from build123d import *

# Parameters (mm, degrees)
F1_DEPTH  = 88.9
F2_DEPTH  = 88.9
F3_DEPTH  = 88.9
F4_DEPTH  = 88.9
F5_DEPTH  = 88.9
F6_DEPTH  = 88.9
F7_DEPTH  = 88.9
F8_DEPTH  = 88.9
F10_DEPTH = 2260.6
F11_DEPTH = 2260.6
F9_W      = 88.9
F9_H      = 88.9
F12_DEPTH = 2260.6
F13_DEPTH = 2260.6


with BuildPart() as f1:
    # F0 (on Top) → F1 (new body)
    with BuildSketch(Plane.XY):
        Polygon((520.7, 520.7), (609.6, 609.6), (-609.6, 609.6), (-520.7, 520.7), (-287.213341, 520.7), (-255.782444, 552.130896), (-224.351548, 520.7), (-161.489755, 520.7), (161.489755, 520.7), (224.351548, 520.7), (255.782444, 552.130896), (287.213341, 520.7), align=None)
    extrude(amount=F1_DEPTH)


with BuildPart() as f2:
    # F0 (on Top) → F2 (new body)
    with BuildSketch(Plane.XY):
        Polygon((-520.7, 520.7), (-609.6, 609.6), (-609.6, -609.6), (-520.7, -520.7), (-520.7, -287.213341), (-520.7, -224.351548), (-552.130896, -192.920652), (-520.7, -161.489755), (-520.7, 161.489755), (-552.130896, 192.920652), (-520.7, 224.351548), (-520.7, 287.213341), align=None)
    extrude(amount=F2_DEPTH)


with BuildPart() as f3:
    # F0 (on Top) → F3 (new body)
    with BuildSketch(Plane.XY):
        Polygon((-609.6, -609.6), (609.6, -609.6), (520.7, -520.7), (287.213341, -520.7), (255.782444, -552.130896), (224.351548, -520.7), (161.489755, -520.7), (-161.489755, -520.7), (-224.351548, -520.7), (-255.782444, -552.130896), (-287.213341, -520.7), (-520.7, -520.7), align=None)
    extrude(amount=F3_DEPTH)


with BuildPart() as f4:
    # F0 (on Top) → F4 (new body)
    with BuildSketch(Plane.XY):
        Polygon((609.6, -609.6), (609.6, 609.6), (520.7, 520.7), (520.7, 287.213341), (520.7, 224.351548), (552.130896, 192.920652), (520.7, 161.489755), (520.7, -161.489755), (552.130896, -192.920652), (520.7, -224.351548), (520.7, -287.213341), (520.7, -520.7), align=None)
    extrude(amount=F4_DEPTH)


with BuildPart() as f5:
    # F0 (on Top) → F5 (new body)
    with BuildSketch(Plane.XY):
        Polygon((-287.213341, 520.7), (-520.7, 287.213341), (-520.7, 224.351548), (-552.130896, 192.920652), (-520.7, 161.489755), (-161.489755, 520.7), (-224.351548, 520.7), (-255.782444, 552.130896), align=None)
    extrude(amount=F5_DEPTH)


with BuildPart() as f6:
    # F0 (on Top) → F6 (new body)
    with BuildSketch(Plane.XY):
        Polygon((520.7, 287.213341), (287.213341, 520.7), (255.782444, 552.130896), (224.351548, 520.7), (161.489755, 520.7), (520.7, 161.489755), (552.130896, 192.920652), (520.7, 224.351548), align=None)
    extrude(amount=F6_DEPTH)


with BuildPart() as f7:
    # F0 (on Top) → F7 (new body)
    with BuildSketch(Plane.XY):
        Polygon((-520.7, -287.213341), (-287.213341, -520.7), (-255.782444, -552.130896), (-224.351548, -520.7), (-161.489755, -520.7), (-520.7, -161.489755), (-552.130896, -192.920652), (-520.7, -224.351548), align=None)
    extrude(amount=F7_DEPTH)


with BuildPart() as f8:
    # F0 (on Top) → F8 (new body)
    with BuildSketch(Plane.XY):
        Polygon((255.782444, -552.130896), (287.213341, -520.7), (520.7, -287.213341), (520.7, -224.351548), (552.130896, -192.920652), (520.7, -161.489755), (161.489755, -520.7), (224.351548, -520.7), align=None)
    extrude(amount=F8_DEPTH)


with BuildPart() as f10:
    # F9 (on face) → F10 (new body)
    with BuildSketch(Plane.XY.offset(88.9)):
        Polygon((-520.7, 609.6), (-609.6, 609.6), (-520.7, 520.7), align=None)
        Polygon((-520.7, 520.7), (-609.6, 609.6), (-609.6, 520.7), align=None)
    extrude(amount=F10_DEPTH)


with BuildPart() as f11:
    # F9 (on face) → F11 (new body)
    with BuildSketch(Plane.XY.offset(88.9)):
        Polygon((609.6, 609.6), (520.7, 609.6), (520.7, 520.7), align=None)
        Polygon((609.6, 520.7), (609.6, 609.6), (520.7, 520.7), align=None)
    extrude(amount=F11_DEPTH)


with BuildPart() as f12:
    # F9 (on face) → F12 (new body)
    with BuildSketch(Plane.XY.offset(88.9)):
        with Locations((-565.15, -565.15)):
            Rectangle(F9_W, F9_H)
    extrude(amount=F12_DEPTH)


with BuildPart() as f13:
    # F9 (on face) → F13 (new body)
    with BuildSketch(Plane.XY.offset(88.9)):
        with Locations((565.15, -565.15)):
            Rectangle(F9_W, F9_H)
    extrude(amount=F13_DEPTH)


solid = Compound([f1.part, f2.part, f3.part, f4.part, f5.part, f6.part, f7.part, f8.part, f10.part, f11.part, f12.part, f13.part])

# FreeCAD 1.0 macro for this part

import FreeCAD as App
import Part
import Sketcher

V = App.Vector
Q = App.Units.Quantity


def add_polygon(sketch, points):
    """Adds a closed chain of lines whose ends are joined by coincident constraints."""
    first, n = sketch.GeometryCount, len(points)
    for a, b in zip(points, points[1:] + points[:1]):
        sketch.addGeometry(Part.LineSegment(App.Vector(*a, 0), App.Vector(*b, 0)), False)
    for i in range(n):
        sketch.addConstraint(Sketcher.Constraint("Coincident", first + i, 2, first + (i + 1) % n, 1))

doc = App.newDocument("Part")
body = doc.addObject("PartDesign::Body", "Body")

# Sketch on XY plane
sketch1 = body.newObject("Sketcher::SketchObject", "Sketch")
sketch1.AttachmentSupport = (doc.getObject("XY_Plane"), [""])
sketch1.MapMode = "FlatFace"
add_polygon(sketch1, [(521, 521), (610, 610), (-610, 610), (-521, 521), (-287, 521), (-256, 552), (-224, 521), (224, 521), (256, 552), (287, 521)])  # lines 0-9
sketch1.addConstraint([
    Sketcher.Constraint("Horizontal", 1),
    Sketcher.Constraint("Horizontal", 3),
    Sketcher.Constraint("Horizontal", 6),
    Sketcher.Constraint("Horizontal", 9),
    Sketcher.Constraint("Symmetric", 4, 2, 7, 2, -2),
    Sketcher.Constraint("Symmetric", 3, 2, 8, 2, -2),
    Sketcher.Constraint("Perpendicular", 0, 2),
    Sketcher.Constraint("Perpendicular", 2, 4),
    Sketcher.Constraint("Perpendicular", 4, 5),
    Sketcher.Constraint("Perpendicular", 5, 7),
    Sketcher.Constraint("Perpendicular", 7, 8),
    Sketcher.Constraint("Horizontal", 3, 2, 5, 2),
    Sketcher.Constraint("Equal", 3, 9),
    Sketcher.Constraint("DistanceX", 1, 2, 1, 1, Q("48 in")),
    Sketcher.Constraint("DistanceY", -1, 1, 0, 2, Q("24 in")),
    Sketcher.Constraint("DistanceX", 2, 2, -1, 1, Q("20.5 in")),
    Sketcher.Constraint("Distance", 4, Q("1.75 in")),
    Sketcher.Constraint("DistanceX", 3, 1, 3, 2, 233.486659),
])
pad1 = body.newObject("PartDesign::Pad", "Pad")
pad1.Profile = sketch1
pad1.Length = Q("3.5 in")
body2 = doc.addObject("PartDesign::Body", "Body001")

# Sketch on XY plane
sketch2 = body2.newObject("Sketcher::SketchObject", "Sketch001")
sketch2.AttachmentSupport = (doc.getObject("XY_Plane001"), [""])
sketch2.MapMode = "FlatFace"
add_polygon(sketch2, [(-521, 521), (-610, 610), (-610, -610), (-521, -521), (-521, -224), (-552, -193), (-521, -161), (-521, 161), (-552, 193), (-521, 224)])  # lines 0-9
sketch2.addConstraint([
    Sketcher.Constraint("Vertical", 1),
    Sketcher.Constraint("Vertical", 3),
    Sketcher.Constraint("Vertical", 6),
    Sketcher.Constraint("Vertical", 9),
    Sketcher.Constraint("Symmetric", 4, 2, 7, 2, -1),
    Sketcher.Constraint("Symmetric", 3, 2, 8, 2, -1),
    Sketcher.Constraint("Perpendicular", 0, 2),
    Sketcher.Constraint("Perpendicular", 2, 4),
    Sketcher.Constraint("Perpendicular", 4, 5),
    Sketcher.Constraint("Perpendicular", 5, 7),
    Sketcher.Constraint("Perpendicular", 7, 8),
    Sketcher.Constraint("Vertical", 3, 2, 5, 2),
    Sketcher.Constraint("Equal", 3, 9),
    Sketcher.Constraint("DistanceY", 1, 2, 1, 1, Q("48 in")),
    Sketcher.Constraint("DistanceX", 0, 2, -1, 1, Q("24 in")),
    Sketcher.Constraint("DistanceX", 2, 2, -1, 1, Q("20.5 in")),
    Sketcher.Constraint("Distance", 4, Q("1.75 in")),
    Sketcher.Constraint("DistanceY", 6, 1, 6, 2, 322.97951),
])
pad2 = body2.newObject("PartDesign::Pad", "Pad001")
pad2.Profile = sketch2
pad2.Length = Q("3.5 in")
body3 = doc.addObject("PartDesign::Body", "Body002")

# Sketch on XY plane
sketch3 = body3.newObject("Sketcher::SketchObject", "Sketch002")
sketch3.AttachmentSupport = (doc.getObject("XY_Plane002"), [""])
sketch3.MapMode = "FlatFace"
add_polygon(sketch3, [(-610, -610), (610, -610), (521, -521), (287, -521), (256, -552), (224, -521), (-224, -521), (-256, -552), (-287, -521), (-521, -521)])  # lines 0-9
sketch3.addConstraint([
    Sketcher.Constraint("Horizontal", 0),
    Sketcher.Constraint("Horizontal", 2),
    Sketcher.Constraint("Horizontal", 5),
    Sketcher.Constraint("Horizontal", 8),
    Sketcher.Constraint("Symmetric", 3, 2, 6, 2, -2),
    Sketcher.Constraint("Symmetric", 2, 2, 7, 2, -2),
    Sketcher.Constraint("Perpendicular", 1, 3),
    Sketcher.Constraint("Perpendicular", 3, 4),
    Sketcher.Constraint("Perpendicular", 4, 6),
    Sketcher.Constraint("Perpendicular", 6, 7),
    Sketcher.Constraint("Perpendicular", 7, 9),
    Sketcher.Constraint("Horizontal", 2, 2, 4, 2),
    Sketcher.Constraint("Equal", 2, 8),
    Sketcher.Constraint("DistanceX", 0, 1, 0, 2, Q("48 in")),
    Sketcher.Constraint("DistanceY", 0, 2, -1, 1, Q("24 in")),
    Sketcher.Constraint("DistanceX", -1, 1, 1, 2, Q("20.5 in")),
    Sketcher.Constraint("Distance", 3, Q("1.75 in")),
    Sketcher.Constraint("DistanceX", 2, 2, 2, 1, 233.486659),
])
pad3 = body3.newObject("PartDesign::Pad", "Pad002")
pad3.Profile = sketch3
pad3.Length = Q("3.5 in")
body4 = doc.addObject("PartDesign::Body", "Body003")

# Sketch on XY plane
sketch4 = body4.newObject("Sketcher::SketchObject", "Sketch003")
sketch4.AttachmentSupport = (doc.getObject("XY_Plane003"), [""])
sketch4.MapMode = "FlatFace"
add_polygon(sketch4, [(610, -610), (610, 610), (521, 521), (521, 224), (552, 193), (521, 161), (521, -161), (552, -193), (521, -224), (521, -521)])  # lines 0-9
sketch4.addConstraint([
    Sketcher.Constraint("Vertical", 0),
    Sketcher.Constraint("Vertical", 2),
    Sketcher.Constraint("Vertical", 5),
    Sketcher.Constraint("Vertical", 8),
    Sketcher.Constraint("Symmetric", 3, 2, 6, 2, -1),
    Sketcher.Constraint("Symmetric", 2, 2, 7, 2, -1),
    Sketcher.Constraint("Perpendicular", 1, 3),
    Sketcher.Constraint("Perpendicular", 3, 4),
    Sketcher.Constraint("Perpendicular", 4, 6),
    Sketcher.Constraint("Perpendicular", 6, 7),
    Sketcher.Constraint("Perpendicular", 7, 9),
    Sketcher.Constraint("Vertical", 2, 2, 4, 2),
    Sketcher.Constraint("Equal", 2, 8),
    Sketcher.Constraint("DistanceY", 0, 1, 0, 2, Q("48 in")),
    Sketcher.Constraint("DistanceX", -1, 1, 0, 2, Q("24 in")),
    Sketcher.Constraint("DistanceX", -1, 1, 1, 2, Q("20.5 in")),
    Sketcher.Constraint("Distance", 3, Q("1.75 in")),
    Sketcher.Constraint("DistanceY", 5, 2, 5, 1, 322.97951),
])
pad4 = body4.newObject("PartDesign::Pad", "Pad003")
pad4.Profile = sketch4
pad4.Length = Q("3.5 in")
body5 = doc.addObject("PartDesign::Body", "Body004")

# Sketch on XY plane
sketch5 = body5.newObject("Sketcher::SketchObject", "Sketch004")
sketch5.AttachmentSupport = (doc.getObject("XY_Plane004"), [""])
sketch5.MapMode = "FlatFace"
add_polygon(sketch5, [(-287, 521), (-521, 287), (-521, 224), (-552, 193), (-521, 161), (-161, 521), (-224, 521), (-256, 552)])  # lines 0-7
sketch5.addConstraint([
    Sketcher.Constraint("Vertical", 1),
    Sketcher.Constraint("Horizontal", 5),
    Sketcher.Constraint("Parallel", 0, 2),
    Sketcher.Constraint("Perpendicular", 2, 3),
    Sketcher.Constraint("Perpendicular", 3, 4),
    Sketcher.Constraint("Perpendicular", 4, 6),
    Sketcher.Constraint("Perpendicular", 6, 7),
    Sketcher.Constraint("Horizontal", 5, 2, 7, 2),
    Sketcher.Constraint("Vertical", 1, 2, 3, 2),
    Sketcher.Constraint("Equal", 5, 1),
    Sketcher.Constraint("Equal", 2, 3),
    Sketcher.Constraint("Distance", 0, Q("13 in")),
    Sketcher.Constraint("Distance", 4, Q("20 in")),
    Sketcher.Constraint("DistanceX", 0, 2, -1, 1, Q("20.5 in")),
    Sketcher.Constraint("DistanceY", -1, 1, 4, 2, Q("20.5 in")),
    Sketcher.Constraint("Distance", 2, Q("1.75 in")),
])
pad5 = body5.newObject("PartDesign::Pad", "Pad004")
pad5.Profile = sketch5
pad5.Length = Q("3.5 in")
body6 = doc.addObject("PartDesign::Body", "Body005")

# Sketch on XY plane
sketch6 = body6.newObject("Sketcher::SketchObject", "Sketch005")
sketch6.AttachmentSupport = (doc.getObject("XY_Plane005"), [""])
sketch6.MapMode = "FlatFace"
add_polygon(sketch6, [(521, 287), (287, 521), (256, 552), (224, 521), (161, 521), (521, 161), (552, 193), (521, 224)])  # lines 0-7
sketch6.addConstraint([
    Sketcher.Constraint("Horizontal", 3),
    Sketcher.Constraint("Vertical", 7),
    Sketcher.Constraint("Parallel", 0, 1),
    Sketcher.Constraint("Perpendicular", 1, 2),
    Sketcher.Constraint("Perpendicular", 2, 4),
    Sketcher.Constraint("Perpendicular", 4, 5),
    Sketcher.Constraint("Perpendicular", 5, 6),
    Sketcher.Constraint("Horizontal", 0, 2, 2, 2),
    Sketcher.Constraint("Vertical", 4, 2, 6, 2),
    Sketcher.Constraint("Equal", 3, 7),
    Sketcher.Constraint("Equal", 1, 2),
    Sketcher.Constraint("Distance", 0, Q("13 in")),
    Sketcher.Constraint("Distance", 4, Q("20 in")),
    Sketcher.Constraint("DistanceY", -1, 1, 0, 2, Q("20.5 in")),
    Sketcher.Constraint("DistanceX", -1, 1, 4, 2, Q("20.5 in")),
    Sketcher.Constraint("Distance", 1, Q("1.75 in")),
])
pad6 = body6.newObject("PartDesign::Pad", "Pad005")
pad6.Profile = sketch6
pad6.Length = Q("3.5 in")
body7 = doc.addObject("PartDesign::Body", "Body006")

# Sketch on XY plane
sketch7 = body7.newObject("Sketcher::SketchObject", "Sketch006")
sketch7.AttachmentSupport = (doc.getObject("XY_Plane006"), [""])
sketch7.MapMode = "FlatFace"
add_polygon(sketch7, [(-521, -287), (-287, -521), (-256, -552), (-224, -521), (-161, -521), (-521, -161), (-552, -193), (-521, -224)])  # lines 0-7
sketch7.addConstraint([
    Sketcher.Constraint("Horizontal", 3),
    Sketcher.Constraint("Vertical", 7),
    Sketcher.Constraint("Parallel", 0, 1),
    Sketcher.Constraint("Perpendicular", 1, 2),
    Sketcher.Constraint("Perpendicular", 2, 4),
    Sketcher.Constraint("Perpendicular", 4, 5),
    Sketcher.Constraint("Perpendicular", 5, 6),
    Sketcher.Constraint("Horizontal", 0, 2, 2, 2),
    Sketcher.Constraint("Vertical", 4, 2, 6, 2),
    Sketcher.Constraint("Equal", 3, 7),
    Sketcher.Constraint("Equal", 1, 2),
    Sketcher.Constraint("Distance", 0, Q("13 in")),
    Sketcher.Constraint("Distance", 4, Q("20 in")),
    Sketcher.Constraint("DistanceY", 0, 2, -1, 1, Q("20.5 in")),
    Sketcher.Constraint("DistanceX", 4, 2, -1, 1, Q("20.5 in")),
    Sketcher.Constraint("Distance", 1, Q("1.75 in")),
])
pad7 = body7.newObject("PartDesign::Pad", "Pad006")
pad7.Profile = sketch7
pad7.Length = Q("3.5 in")
body8 = doc.addObject("PartDesign::Body", "Body007")

# Sketch on XY plane
sketch8 = body8.newObject("Sketcher::SketchObject", "Sketch007")
sketch8.AttachmentSupport = (doc.getObject("XY_Plane007"), [""])
sketch8.MapMode = "FlatFace"
add_polygon(sketch8, [(256, -552), (287, -521), (521, -287), (521, -224), (552, -193), (521, -161), (161, -521), (224, -521)])  # lines 0-7
sketch8.addConstraint([
    Sketcher.Constraint("Vertical", 2),
    Sketcher.Constraint("Horizontal", 6),
    Sketcher.Constraint("Parallel", 0, 1),
    Sketcher.Constraint("Parallel", 1, 3),
    Sketcher.Constraint("Perpendicular", 3, 4),
    Sketcher.Constraint("Perpendicular", 4, 5),
    Sketcher.Constraint("Perpendicular", 5, 7),
    Sketcher.Constraint("Horizontal", 0, 2, 5, 2),
    Sketcher.Constraint("Vertical", 2, 2, 4, 2),
    Sketcher.Constraint("Equal", 6, 2),
    Sketcher.Constraint("Equal", 0, 3),
    Sketcher.Constraint("Distance", 1, Q("13 in")),
    Sketcher.Constraint("Distance", 5, Q("20 in")),
    Sketcher.Constraint("DistanceY", 0, 2, -1, 1, Q("20.5 in")),
    Sketcher.Constraint("DistanceX", -1, 1, 1, 2, Q("20.5 in")),
    Sketcher.Constraint("Distance", 0, Q("1.75 in")),
])
pad8 = body8.newObject("PartDesign::Pad", "Pad007")
pad8.Profile = sketch8
pad8.Length = Q("3.5 in")
body9 = doc.addObject("PartDesign::Body", "Body008")

# Sketch on XY plane
sketch9 = body9.newObject("Sketcher::SketchObject", "Sketch008")
sketch9.AttachmentSupport = (doc.getObject("XY_Plane008"), [""])
sketch9.MapMode = "FlatFace"
sketch9.AttachmentOffset = App.Placement(V(0, 0, 3.5 * 25.4), App.Rotation())
add_polygon(sketch9, [(-521, 610), (-610, 610), (-610, 521), (-521, 521)])  # lines 0-3
sketch9.addConstraint([
    Sketcher.Constraint("Horizontal", 0),
    Sketcher.Constraint("Vertical", 1),
    Sketcher.Constraint("Horizontal", 2),
    Sketcher.Constraint("Vertical", 3),
    Sketcher.Constraint("Equal", 2, 1),
    Sketcher.Constraint("DistanceX", 0, 2, 0, 1, Q("3.5 in")),
    Sketcher.Constraint("DistanceX", 0, 2, -1, 1, Q("24 in")),
    Sketcher.Constraint("DistanceY", -1, 1, 0, 2, Q("24 in")),
])
pad9 = body9.newObject("PartDesign::Pad", "Pad008")
pad9.Profile = sketch9
pad9.Length = Q("89 in")
body10 = doc.addObject("PartDesign::Body", "Body009")

# Sketch on XY plane
sketch10 = body10.newObject("Sketcher::SketchObject", "Sketch009")
sketch10.AttachmentSupport = (doc.getObject("XY_Plane009"), [""])
sketch10.MapMode = "FlatFace"
sketch10.AttachmentOffset = App.Placement(V(0, 0, 3.5 * 25.4), App.Rotation())
add_polygon(sketch10, [(610, 610), (521, 610), (521, 521), (610, 521)])  # lines 0-3
sketch10.addConstraint([
    Sketcher.Constraint("Horizontal", 0),
    Sketcher.Constraint("Vertical", 1),
    Sketcher.Constraint("Horizontal", 2),
    Sketcher.Constraint("Vertical", 3),
    Sketcher.Constraint("Equal", 2, 1),
    Sketcher.Constraint("DistanceX", 0, 2, 0, 1, Q("3.5 in")),
    Sketcher.Constraint("DistanceY", -1, 1, 0, 2, Q("24 in")),
    Sketcher.Constraint("DistanceX", -1, 1, 2, 2, Q("24 in")),
])
pad10 = body10.newObject("PartDesign::Pad", "Pad009")
pad10.Profile = sketch10
pad10.Length = Q("89 in")
body11 = doc.addObject("PartDesign::Body", "Body010")

# Sketch on XY plane
sketch11 = body11.newObject("Sketcher::SketchObject", "Sketch010")
sketch11.AttachmentSupport = (doc.getObject("XY_Plane010"), [""])
sketch11.MapMode = "FlatFace"
sketch11.AttachmentOffset = App.Placement(V(0, 0, 3.5 * 25.4), App.Rotation())
add_polygon(sketch11, [(-610, -521), (-610, -610), (-521, -610), (-521, -521)])  # lines 0-3
sketch11.addConstraint([
    Sketcher.Constraint("Vertical", 0),
    Sketcher.Constraint("Horizontal", 1),
    Sketcher.Constraint("Vertical", 2),
    Sketcher.Constraint("Horizontal", 3),
    Sketcher.Constraint("Equal", 3, 0),
    Sketcher.Constraint("DistanceX", 1, 1, 1, 2, Q("3.5 in")),
    Sketcher.Constraint("DistanceX", 0, 2, -1, 1, Q("24 in")),
    Sketcher.Constraint("DistanceY", 0, 2, -1, 1, Q("24 in")),
])
pad11 = body11.newObject("PartDesign::Pad", "Pad010")
pad11.Profile = sketch11
pad11.Length = Q("89 in")
body12 = doc.addObject("PartDesign::Body", "Body011")

# Sketch on XY plane
sketch12 = body12.newObject("Sketcher::SketchObject", "Sketch011")
sketch12.AttachmentSupport = (doc.getObject("XY_Plane011"), [""])
sketch12.MapMode = "FlatFace"
sketch12.AttachmentOffset = App.Placement(V(0, 0, 3.5 * 25.4), App.Rotation())
add_polygon(sketch12, [(521, -521), (521, -610), (610, -610), (610, -521)])  # lines 0-3
sketch12.addConstraint([
    Sketcher.Constraint("Vertical", 0),
    Sketcher.Constraint("Horizontal", 1),
    Sketcher.Constraint("Vertical", 2),
    Sketcher.Constraint("Horizontal", 3),
    Sketcher.Constraint("Equal", 3, 0),
    Sketcher.Constraint("DistanceX", 1, 1, 1, 2, Q("3.5 in")),
    Sketcher.Constraint("DistanceY", 0, 2, -1, 1, Q("24 in")),
    Sketcher.Constraint("DistanceX", -1, 1, 1, 2, Q("24 in")),
])
pad12 = body12.newObject("PartDesign::Pad", "Pad011")
pad12.Profile = sketch12
pad12.Length = Q("89 in")

doc.recompute()
